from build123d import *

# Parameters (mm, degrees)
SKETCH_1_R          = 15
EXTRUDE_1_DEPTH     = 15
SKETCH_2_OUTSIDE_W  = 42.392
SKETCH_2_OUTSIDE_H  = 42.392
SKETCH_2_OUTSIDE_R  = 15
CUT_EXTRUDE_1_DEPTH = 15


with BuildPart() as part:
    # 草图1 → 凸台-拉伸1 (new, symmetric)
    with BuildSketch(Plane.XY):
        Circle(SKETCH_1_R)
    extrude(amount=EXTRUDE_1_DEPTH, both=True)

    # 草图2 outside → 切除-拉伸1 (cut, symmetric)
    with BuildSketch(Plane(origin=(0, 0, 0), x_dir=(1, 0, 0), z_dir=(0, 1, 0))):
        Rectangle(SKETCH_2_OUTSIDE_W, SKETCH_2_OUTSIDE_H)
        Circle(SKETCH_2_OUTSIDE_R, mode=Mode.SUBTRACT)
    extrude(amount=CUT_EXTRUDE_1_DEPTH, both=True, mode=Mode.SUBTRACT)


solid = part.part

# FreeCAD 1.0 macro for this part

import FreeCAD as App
import Part
import Sketcher

V = App.Vector


def add_polygon(sketch, points):
    """Adds a closed chain of lines whose ends are joined by coincident constraints."""
    first, n = sketch.GeometryCount, len(points)
    for a, b in zip(points, points[1:] + points[:1]):
        sketch.addGeometry(Part.LineSegment(App.Vector(*a, 0), App.Vector(*b, 0)), False)
    for i in range(n):
        sketch.addConstraint(Sketcher.Constraint("Coincident", first + i, 2, first + (i + 1) % n, 1))

doc = App.newDocument("Part")
body = doc.addObject("PartDesign::Body", "Body")

# Sketch on XY plane
sketch1 = doc.addObject("Sketcher::SketchObject", "Sketch")
body.addObject(sketch1)
sketch1.AttachmentSupport = (doc.XY_Plane, [""])
sketch1.MapMode = "FlatFace"
sketch1.addGeometry(Part.Circle(V(0, 0, 0), V(0, 0, 1), 15), False)
sketch1.addConstraint([
    Sketcher.Constraint("Coincident", 0, 3, -1, 1),
    Sketcher.Constraint("Diameter", 0, 30.0),
])
pad1 = doc.addObject("PartDesign::Pad", "Pad")
body.addObject(pad1)
pad1.Profile = sketch1
pad1.Length = 30
pad1.Midplane = True

# Sketch on XZ plane
sketch2 = doc.addObject("Sketcher::SketchObject", "Sketch001")
body.addObject(sketch2)
sketch2.AttachmentSupport = (doc.XZ_Plane, [""])
sketch2.MapMode = "FlatFace"
add_polygon(sketch2, [(-21, -21), (-21, 21), (21, 21), (21, -21)])  # lines 0-3
sketch2.addGeometry(Part.Circle(V(0, 0, 0), V(0, 0, 1), 15), False)  # 4
sketch2.addConstraint([
    Sketcher.Constraint("Vertical", 0),
    Sketcher.Constraint("Horizontal", 1),
    Sketcher.Constraint("Vertical", 2),
    Sketcher.Constraint("Horizontal", 3),
    Sketcher.Constraint("Coincident", 4, 3, -1, 1),
    Sketcher.Constraint("Symmetric", 0, 2, 2, 2, -1, 1),
    Sketcher.Constraint("Equal", 3, 0),
    Sketcher.Constraint("Diameter", 4, 30.0),
    Sketcher.Constraint("DistanceX", 1, 1, 1, 2, 42.392),
])
pocket1 = doc.addObject("PartDesign::Pocket", "Pocket")
body.addObject(pocket1)
pocket1.Profile = sketch2
pocket1.Length = 30
pocket1.Midplane = True

doc.recompute()
